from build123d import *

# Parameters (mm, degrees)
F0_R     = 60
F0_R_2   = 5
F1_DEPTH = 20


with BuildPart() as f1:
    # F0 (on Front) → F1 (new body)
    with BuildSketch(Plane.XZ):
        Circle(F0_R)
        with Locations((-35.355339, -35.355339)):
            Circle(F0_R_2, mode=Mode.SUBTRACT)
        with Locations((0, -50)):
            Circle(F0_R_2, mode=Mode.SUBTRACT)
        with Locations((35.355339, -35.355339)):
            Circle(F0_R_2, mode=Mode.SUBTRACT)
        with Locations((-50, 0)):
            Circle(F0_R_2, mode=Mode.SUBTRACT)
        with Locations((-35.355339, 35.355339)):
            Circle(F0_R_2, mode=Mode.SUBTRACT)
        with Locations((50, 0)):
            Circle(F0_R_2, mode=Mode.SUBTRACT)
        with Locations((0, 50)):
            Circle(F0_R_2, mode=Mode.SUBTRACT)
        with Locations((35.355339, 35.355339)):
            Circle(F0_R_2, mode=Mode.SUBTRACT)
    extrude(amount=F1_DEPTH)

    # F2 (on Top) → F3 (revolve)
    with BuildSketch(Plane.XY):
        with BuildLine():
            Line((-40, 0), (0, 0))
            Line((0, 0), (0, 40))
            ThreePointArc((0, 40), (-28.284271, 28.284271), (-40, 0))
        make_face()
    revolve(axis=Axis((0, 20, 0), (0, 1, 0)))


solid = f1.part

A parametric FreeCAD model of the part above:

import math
import FreeCAD as App
import Part
import Sketcher
from FreeCAD import Vector

doc = App.newDocument("Part")
body = doc.addObject("PartDesign::Body", "Body")

# Sketch on XZ plane
sketch1 = body.newObject("Sketcher::SketchObject", "Sketch")
sketch1.AttachmentSupport = (doc.getObject("XZ_Plane"), [""])
sketch1.MapMode = "FlatFace"
sketch1.addGeometry(Part.Circle(Vector(0, 0, 0), Vector(0, 0, 1), 60), False)
sketch1.addGeometry(Part.Circle(Vector(-35, -35, 0), Vector(0, 0, 1), 5), False)
sketch1.addGeometry(Part.Circle(Vector(0, -50, 0), Vector(0, 0, 1), 5), False)
sketch1.addGeometry(Part.Circle(Vector(35, -35, 0), Vector(0, 0, 1), 5), False)
sketch1.addGeometry(Part.Circle(Vector(-50, 0, 0), Vector(0, 0, 1), 5), False)
sketch1.addGeometry(Part.Circle(Vector(-35, 35, 0), Vector(0, 0, 1), 5), False)
sketch1.addGeometry(Part.Circle(Vector(50, 0, 0), Vector(0, 0, 1), 5), False)
sketch1.addGeometry(Part.Circle(Vector(0, 50, 0), Vector(0, 0, 1), 5), False)
sketch1.addGeometry(Part.Circle(Vector(35, 35, 0), Vector(0, 0, 1), 5), False)
sketch1.addConstraint(Sketcher.Constraint("Coincident", 0, 3, -1, 1))
sketch1.addConstraint(Sketcher.Constraint("Equal", 1, 2))
sketch1.addConstraint(Sketcher.Constraint("Equal", 2, 3))
sketch1.addConstraint(Sketcher.Constraint("Equal", 3, 4))
sketch1.addConstraint(Sketcher.Constraint("Equal", 4, 5))
sketch1.addConstraint(Sketcher.Constraint("Equal", 5, 6))
sketch1.addConstraint(Sketcher.Constraint("Equal", 6, 7))
sketch1.addConstraint(Sketcher.Constraint("Equal", 7, 8))
sketch1.addConstraint(Sketcher.Constraint("Symmetric", 3, 3, 5, 3, -1, 1))
sketch1.addConstraint(Sketcher.Constraint("Symmetric", 4, 3, 6, 3, -1, 1))
sketch1.addConstraint(Sketcher.Constraint("Symmetric", 2, 3, 7, 3, -1, 1))
sketch1.addConstraint(Sketcher.Constraint("Symmetric", 1, 3, 8, 3, -1, 1))
sketch1.addConstraint(Sketcher.Constraint("Symmetric", 1, 3, 3, 3, -2))
sketch1.addConstraint(Sketcher.Constraint("PointOnObject", 2, 3, -2))
sketch1.addConstraint(Sketcher.Constraint("PointOnObject", 4, 3, -1))
sketch1.addConstraint(Sketcher.Constraint("Diameter", 0, 120.0))
sketch1.addConstraint(Sketcher.Constraint("Diameter", 1, 10.0))
sketch1.addConstraint(Sketcher.Constraint("DistanceY", 2, 3, -1, 1, 50.0))
sketch1.addConstraint(Sketcher.Constraint("DistanceX", 4, 3, -1, 1, 50.0))
sketch1.addConstraint(Sketcher.Constraint("DistanceX", 1, 3, -1, 1, 35.355339))
sketch1.addConstraint(Sketcher.Constraint("DistanceY", 1, 3, -1, 1, 35.355339))
pad1 = body.newObject("PartDesign::Pad", "Pad")
pad1.Profile = sketch1
pad1.Length = 20

# Sketch on XY plane
sketch2 = body.newObject("Sketcher::SketchObject", "Sketch001")
sketch2.AttachmentSupport = (doc.getObject("XY_Plane"), [""])
sketch2.MapMode = "FlatFace"
sketch2.addGeometry(Part.LineSegment(Vector(-40, 0, 0), Vector(0, 0, 0)), False)
sketch2.addGeometry(Part.LineSegment(Vector(0, 0, 0), Vector(0, 40, 0)), False)
sketch2.addGeometry(Part.ArcOfCircle(Part.Circle(Vector(0, 0, 0), Vector(0, 0, 1), 40), math.radians(90), math.radians(180)), False)
sketch2.addConstraint(Sketcher.Constraint("Coincident", 0, 2, 1, 1))
sketch2.addConstraint(Sketcher.Constraint("Coincident", 1, 2, 2, 1))
sketch2.addConstraint(Sketcher.Constraint("Coincident", 2, 2, 0, 1))
sketch2.addConstraint(Sketcher.Constraint("Horizontal", 0))
sketch2.addConstraint(Sketcher.Constraint("Vertical", 1))
sketch2.addConstraint(Sketcher.Constraint("Coincident", 2, 3, -1, 1))
sketch2.addConstraint(Sketcher.Constraint("Coincident", 0, 2, -1, 1))
sketch2.addConstraint(Sketcher.Constraint("Radius", 2, 40.000001))
revolution = body.newObject("PartDesign::Revolution", "Revolution")
revolution.Profile = sketch2
revolution.ReferenceAxis = (sketch2, ["V_Axis"])
revolution.Angle = 360

doc.recompute()
